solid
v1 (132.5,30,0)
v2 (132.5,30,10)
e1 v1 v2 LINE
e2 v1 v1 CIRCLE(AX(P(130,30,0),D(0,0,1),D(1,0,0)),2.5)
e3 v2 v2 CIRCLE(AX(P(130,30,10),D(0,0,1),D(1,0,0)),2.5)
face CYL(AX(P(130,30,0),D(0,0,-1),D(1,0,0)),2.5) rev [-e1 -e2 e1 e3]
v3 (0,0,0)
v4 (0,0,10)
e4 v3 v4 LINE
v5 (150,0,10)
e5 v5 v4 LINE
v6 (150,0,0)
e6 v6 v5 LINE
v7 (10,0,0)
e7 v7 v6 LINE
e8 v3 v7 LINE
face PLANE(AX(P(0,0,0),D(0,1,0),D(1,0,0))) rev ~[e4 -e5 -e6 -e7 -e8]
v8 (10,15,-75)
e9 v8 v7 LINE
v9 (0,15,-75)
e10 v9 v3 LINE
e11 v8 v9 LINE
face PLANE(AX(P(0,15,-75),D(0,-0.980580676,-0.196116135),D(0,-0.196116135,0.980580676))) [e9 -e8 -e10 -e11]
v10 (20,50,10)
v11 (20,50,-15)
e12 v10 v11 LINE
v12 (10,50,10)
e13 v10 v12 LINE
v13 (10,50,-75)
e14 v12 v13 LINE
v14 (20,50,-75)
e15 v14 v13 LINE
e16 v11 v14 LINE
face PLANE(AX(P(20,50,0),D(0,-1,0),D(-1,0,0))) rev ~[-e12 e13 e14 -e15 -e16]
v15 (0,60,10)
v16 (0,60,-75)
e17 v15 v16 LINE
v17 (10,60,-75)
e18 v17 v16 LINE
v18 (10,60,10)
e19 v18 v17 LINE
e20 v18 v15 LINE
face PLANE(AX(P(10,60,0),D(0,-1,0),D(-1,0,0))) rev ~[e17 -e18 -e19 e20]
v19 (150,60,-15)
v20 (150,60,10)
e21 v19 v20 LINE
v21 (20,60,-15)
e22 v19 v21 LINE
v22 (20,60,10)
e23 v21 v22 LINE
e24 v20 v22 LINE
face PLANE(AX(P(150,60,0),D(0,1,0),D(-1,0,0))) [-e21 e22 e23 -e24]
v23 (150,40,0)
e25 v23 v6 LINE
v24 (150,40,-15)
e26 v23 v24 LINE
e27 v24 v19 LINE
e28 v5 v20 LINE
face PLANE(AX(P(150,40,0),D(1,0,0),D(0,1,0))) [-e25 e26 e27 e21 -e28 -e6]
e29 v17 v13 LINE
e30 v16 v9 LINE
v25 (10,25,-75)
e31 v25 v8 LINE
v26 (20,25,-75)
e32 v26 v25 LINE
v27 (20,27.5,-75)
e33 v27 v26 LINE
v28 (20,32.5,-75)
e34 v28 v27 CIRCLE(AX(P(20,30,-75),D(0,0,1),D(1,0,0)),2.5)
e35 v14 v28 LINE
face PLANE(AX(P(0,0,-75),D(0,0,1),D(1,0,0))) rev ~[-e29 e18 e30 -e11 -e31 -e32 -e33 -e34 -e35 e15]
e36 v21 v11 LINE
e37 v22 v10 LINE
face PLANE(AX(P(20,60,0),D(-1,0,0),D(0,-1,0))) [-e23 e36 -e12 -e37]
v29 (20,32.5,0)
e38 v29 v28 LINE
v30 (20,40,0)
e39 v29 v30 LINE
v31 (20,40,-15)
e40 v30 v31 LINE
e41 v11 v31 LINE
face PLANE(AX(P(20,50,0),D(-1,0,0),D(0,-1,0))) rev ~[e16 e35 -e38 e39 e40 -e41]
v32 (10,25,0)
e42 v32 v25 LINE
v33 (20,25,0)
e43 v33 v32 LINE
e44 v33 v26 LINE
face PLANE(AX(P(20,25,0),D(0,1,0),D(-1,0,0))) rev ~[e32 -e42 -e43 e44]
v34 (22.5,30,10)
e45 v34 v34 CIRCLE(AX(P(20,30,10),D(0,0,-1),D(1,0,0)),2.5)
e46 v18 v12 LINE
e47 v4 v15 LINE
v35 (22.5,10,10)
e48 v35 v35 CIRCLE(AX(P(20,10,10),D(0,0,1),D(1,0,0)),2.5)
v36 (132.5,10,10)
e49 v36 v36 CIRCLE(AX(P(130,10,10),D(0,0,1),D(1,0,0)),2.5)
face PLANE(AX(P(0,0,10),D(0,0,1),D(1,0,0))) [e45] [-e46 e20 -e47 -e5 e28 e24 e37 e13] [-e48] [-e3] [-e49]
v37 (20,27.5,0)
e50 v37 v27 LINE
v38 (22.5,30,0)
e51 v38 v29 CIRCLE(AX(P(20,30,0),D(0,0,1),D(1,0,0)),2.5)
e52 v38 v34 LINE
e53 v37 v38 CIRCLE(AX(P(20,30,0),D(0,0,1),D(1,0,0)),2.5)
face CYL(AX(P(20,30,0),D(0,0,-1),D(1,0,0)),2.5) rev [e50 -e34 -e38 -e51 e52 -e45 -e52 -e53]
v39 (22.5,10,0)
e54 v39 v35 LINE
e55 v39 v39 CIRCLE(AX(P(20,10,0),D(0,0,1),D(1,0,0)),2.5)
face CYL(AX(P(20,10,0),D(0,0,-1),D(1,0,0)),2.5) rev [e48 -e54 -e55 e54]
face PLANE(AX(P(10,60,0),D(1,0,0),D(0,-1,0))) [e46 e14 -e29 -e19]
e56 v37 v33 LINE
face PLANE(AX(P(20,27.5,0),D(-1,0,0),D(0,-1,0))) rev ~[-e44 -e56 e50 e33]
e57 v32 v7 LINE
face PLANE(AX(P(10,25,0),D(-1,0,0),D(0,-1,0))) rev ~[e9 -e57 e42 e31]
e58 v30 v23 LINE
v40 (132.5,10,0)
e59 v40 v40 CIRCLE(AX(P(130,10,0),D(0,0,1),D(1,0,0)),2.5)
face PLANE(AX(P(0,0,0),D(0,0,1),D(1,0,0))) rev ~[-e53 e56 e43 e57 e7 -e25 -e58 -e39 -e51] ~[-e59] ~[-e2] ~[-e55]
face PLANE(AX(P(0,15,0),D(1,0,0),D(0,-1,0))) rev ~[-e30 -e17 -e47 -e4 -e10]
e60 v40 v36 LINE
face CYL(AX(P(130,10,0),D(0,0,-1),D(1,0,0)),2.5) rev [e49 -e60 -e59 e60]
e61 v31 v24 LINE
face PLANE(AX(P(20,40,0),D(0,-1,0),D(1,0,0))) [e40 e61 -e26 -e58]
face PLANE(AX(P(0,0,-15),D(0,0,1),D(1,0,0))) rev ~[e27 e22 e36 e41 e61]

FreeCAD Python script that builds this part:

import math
import FreeCAD as App
import Part
import Sketcher
from FreeCAD import Vector

doc = App.newDocument("Part")
body = doc.addObject("PartDesign::Body", "Body")

# Sketch on XY plane
sketch1 = body.newObject("Sketcher::SketchObject", "Sketch")
sketch1.AttachmentSupport = (doc.getObject("XY_Plane"), [""])
sketch1.MapMode = "FlatFace"
sketch1.addGeometry(Part.LineSegment(Vector(0, 0, 0), Vector(150, 0, 0)), False)
sketch1.addGeometry(Part.LineSegment(Vector(150, 0, 0), Vector(150, 60, 0)), False)
sketch1.addGeometry(Part.LineSegment(Vector(150, 60, 0), Vector(20, 60, 0)), False)
sketch1.addGeometry(Part.LineSegment(Vector(20, 60, 0), Vector(20, 50, 0)), False)
sketch1.addGeometry(Part.LineSegment(Vector(20, 50, 0), Vector(10, 50, 0)), False)
sketch1.addGeometry(Part.LineSegment(Vector(10, 50, 0), Vector(10, 60, 0)), False)
sketch1.addGeometry(Part.LineSegment(Vector(10, 60, 0), Vector(0, 60, 0)), False)
sketch1.addGeometry(Part.LineSegment(Vector(0, 60, 0), Vector(0, 0, 0)), False)
sketch1.addGeometry(Part.Circle(Vector(130, 30, 0), Vector(0, 0, 1), 2.5), False)
sketch1.addGeometry(Part.Circle(Vector(130, 10, 0), Vector(0, 0, 1), 2.5), False)
sketch1.addGeometry(Part.Circle(Vector(20, 30, 0), Vector(0, 0, 1), 2.5), False)
sketch1.addGeometry(Part.Circle(Vector(20, 10, 0), Vector(0, 0, 1), 2.5), False)
sketch1.addConstraint(Sketcher.Constraint("Coincident", 0, 2, 1, 1))
sketch1.addConstraint(Sketcher.Constraint("Coincident", 1, 2, 2, 1))
sketch1.addConstraint(Sketcher.Constraint("Coincident", 2, 2, 3, 1))
sketch1.addConstraint(Sketcher.Constraint("Coincident", 3, 2, 4, 1))
sketch1.addConstraint(Sketcher.Constraint("Coincident", 4, 2, 5, 1))
sketch1.addConstraint(Sketcher.Constraint("Coincident", 5, 2, 6, 1))
sketch1.addConstraint(Sketcher.Constraint("Coincident", 6, 2, 7, 1))
sketch1.addConstraint(Sketcher.Constraint("Coincident", 7, 2, 0, 1))
sketch1.addConstraint(Sketcher.Constraint("Horizontal", 0))
sketch1.addConstraint(Sketcher.Constraint("Vertical", 1))
sketch1.addConstraint(Sketcher.Constraint("Horizontal", 2))
sketch1.addConstraint(Sketcher.Constraint("Vertical", 3))
sketch1.addConstraint(Sketcher.Constraint("Horizontal", 4))
sketch1.addConstraint(Sketcher.Constraint("Vertical", 5))
sketch1.addConstraint(Sketcher.Constraint("Horizontal", 6))
sketch1.addConstraint(Sketcher.Constraint("Vertical", 7))
sketch1.addConstraint(Sketcher.Constraint("Coincident", 7, 2, -1, 1))
sketch1.addConstraint(Sketcher.Constraint("Equal", 8, 9))
sketch1.addConstraint(Sketcher.Constraint("Equal", 9, 10))
sketch1.addConstraint(Sketcher.Constraint("Equal", 10, 11))
sketch1.addConstraint(Sketcher.Constraint("Horizontal", 8, 3, 10, 3))
sketch1.addConstraint(Sketcher.Constraint("Horizontal", 9, 3, 11, 3))
sketch1.addConstraint(Sketcher.Constraint("Horizontal", 2, 2, 5, 2))
sketch1.addConstraint(Sketcher.Constraint("Vertical", 8, 3, 9, 3))
sketch1.addConstraint(Sketcher.Constraint("Vertical", 10, 3, 11, 3))
sketch1.addConstraint(Sketcher.Constraint("Vertical", 11, 3, 2, 2))
sketch1.addConstraint(Sketcher.Constraint("Equal", 4, 6))
sketch1.addConstraint(Sketcher.Constraint("Equal", 6, 3))
sketch1.addConstraint(Sketcher.Constraint("Diameter", 8, 5.0))
sketch1.addConstraint(Sketcher.Constraint("DistanceX", 0, 1, 0, 2, 150.0))
sketch1.addConstraint(Sketcher.Constraint("DistanceX", 4, 2, 4, 1, 10.0))
sketch1.addConstraint(Sketcher.Constraint("DistanceY", 1, 1, 1, 2, 60.0))
sketch1.addConstraint(Sketcher.Constraint("DistanceY", -1, 1, 8, 3, 30.0))
sketch1.addConstraint(Sketcher.Constraint("DistanceY", -1, 1, 9, 3, 10.0))
sketch1.addConstraint(Sketcher.Constraint("DistanceX", 9, 3, 0, 2, 20.0))
pad1 = body.newObject("PartDesign::Pad", "Pad")
pad1.Profile = sketch1
pad1.Length = 10

# Sketch on XY plane
sketch2 = body.newObject("Sketcher::SketchObject", "Sketch001")
sketch2.AttachmentSupport = (doc.getObject("XY_Plane"), [""])
sketch2.MapMode = "FlatFace"
sketch2.addGeometry(Part.LineSegment(Vector(0, 60, 0), Vector(0, 15, 0)), False)
sketch2.addGeometry(Part.LineSegment(Vector(0, 15, 0), Vector(10, 15, 0)), False)
sketch2.addGeometry(Part.LineSegment(Vector(10, 15, 0), Vector(10, 25, 0)), False)
sketch2.addGeometry(Part.LineSegment(Vector(10, 25, 0), Vector(20, 25, 0)), False)
sketch2.addGeometry(Part.LineSegment(Vector(20, 25, 0), Vector(20, 27.5, 0)), False)
sketch2.addGeometry(Part.ArcOfCircle(Part.Circle(Vector(20, 30, 0), Vector(0, 0, 1), 2.5), math.radians(90), math.radians(270)), False)
sketch2.addGeometry(Part.LineSegment(Vector(20, 32.5, 0), Vector(20, 50, 0)), False)
sketch2.addGeometry(Part.LineSegment(Vector(20, 50, 0), Vector(10, 50, 0)), False)
sketch2.addGeometry(Part.LineSegment(Vector(10, 50, 0), Vector(10, 60, 0)), False)
sketch2.addGeometry(Part.LineSegment(Vector(10, 60, 0), Vector(0, 60, 0)), False)
sketch2.addConstraint(Sketcher.Constraint("Coincident", 0, 2, 1, 1))
sketch2.addConstraint(Sketcher.Constraint("Coincident", 1, 2, 2, 1))
sketch2.addConstraint(Sketcher.Constraint("Coincident", 2, 2, 3, 1))
sketch2.addConstraint(Sketcher.Constraint("Coincident", 3, 2, 4, 1))
sketch2.addConstraint(Sketcher.Constraint("Coincident", 4, 2, 5, 2))
sketch2.addConstraint(Sketcher.Constraint("Coincident", 5, 1, 6, 1))
sketch2.addConstraint(Sketcher.Constraint("Coincident", 6, 2, 7, 1))
sketch2.addConstraint(Sketcher.Constraint("Coincident", 7, 2, 8, 1))
sketch2.addConstraint(Sketcher.Constraint("Coincident", 8, 2, 9, 1))
sketch2.addConstraint(Sketcher.Constraint("Coincident", 9, 2, 0, 1))
sketch2.addConstraint(Sketcher.Constraint("Vertical", 0))
sketch2.addConstraint(Sketcher.Constraint("Horizontal", 1))
sketch2.addConstraint(Sketcher.Constraint("Vertical", 2))
sketch2.addConstraint(Sketcher.Constraint("Horizontal", 3))
sketch2.addConstraint(Sketcher.Constraint("Vertical", 4))
sketch2.addConstraint(Sketcher.Constraint("Vertical", 6))
sketch2.addConstraint(Sketcher.Constraint("Horizontal", 7))
sketch2.addConstraint(Sketcher.Constraint("Vertical", 8))
sketch2.addConstraint(Sketcher.Constraint("Horizontal", 9))
sketch2.addConstraint(Sketcher.Constraint("PointOnObject", 0, 2, -2))
sketch2.addConstraint(Sketcher.Constraint("Vertical", 5, 3, 3, 2))
sketch2.addConstraint(Sketcher.Constraint("Vertical", 4, 2, 5, 1))
sketch2.addConstraint(Sketcher.Constraint("Vertical", 2, 2, 7, 2))
sketch2.addConstraint(Sketcher.Constraint("Equal", 1, 3))
sketch2.addConstraint(Sketcher.Constraint("Equal", 9, 2))
sketch2.addConstraint(Sketcher.Constraint("Equal", 2, 8))
sketch2.addConstraint(Sketcher.Constraint("Radius", 5, 2.5))
sketch2.addConstraint(Sketcher.Constraint("DistanceX", 1, 1, 1, 2, 10.0))
sketch2.addConstraint(Sketcher.Constraint("DistanceY", -1, 1, 5, 3, 30.0))
sketch2.addConstraint(Sketcher.Constraint("DistanceY", -1, 1, 2, 2, 25.0))
sketch2.addConstraint(Sketcher.Constraint("DistanceY", -1, 1, 8, 2, 60.0))
pad2 = body.newObject("PartDesign::Pad", "Pad001")
pad2.Profile = sketch2
pad2.Length = 75
pad2.Reversed = True

# Sketch on YZ plane
sketch3 = body.newObject("Sketcher::SketchObject", "Sketch002")
sketch3.AttachmentSupport = (doc.getObject("YZ_Plane"), [""])
sketch3.MapMode = "FlatFace"
sketch3.addGeometry(Part.LineSegment(Vector(0, 10, 0), Vector(60, 10, 0)), False)
sketch3.addGeometry(Part.LineSegment(Vector(60, 10, 0), Vector(60, -75, 0)), False)
sketch3.addGeometry(Part.LineSegment(Vector(60, -75, 0), Vector(15, -75, 0)), False)
sketch3.addGeometry(Part.LineSegment(Vector(15, -75, 0), Vector(0, 0, 0)), False)
sketch3.addGeometry(Part.LineSegment(Vector(0, 0, 0), Vector(0, 10, 0)), False)
sketch3.addConstraint(Sketcher.Constraint("Coincident", 0, 2, 1, 1))
sketch3.addConstraint(Sketcher.Constraint("Coincident", 1, 2, 2, 1))
sketch3.addConstraint(Sketcher.Constraint("Coincident", 2, 2, 3, 1))
sketch3.addConstraint(Sketcher.Constraint("Coincident", 3, 2, 4, 1))
sketch3.addConstraint(Sketcher.Constraint("Coincident", 4, 2, 0, 1))
sketch3.addConstraint(Sketcher.Constraint("Horizontal", 0))
sketch3.addConstraint(Sketcher.Constraint("Vertical", 1))
sketch3.addConstraint(Sketcher.Constraint("Horizontal", 2))
sketch3.addConstraint(Sketcher.Constraint("Vertical", 4))
sketch3.addConstraint(Sketcher.Constraint("Coincident", 3, 2, -1, 1))
sketch3.addConstraint(Sketcher.Constraint("DistanceX", 0, 1, 0, 2, 60.0))
sketch3.addConstraint(Sketcher.Constraint("DistanceX", 2, 2, 2, 1, 45.0))
sketch3.addConstraint(Sketcher.Constraint("DistanceY", 1, 2, 1, 1, 85.0))
sketch3.addConstraint(Sketcher.Constraint("DistanceY", 4, 1, 4, 2, 10.0))
pad3 = body.newObject("PartDesign::Pad", "Pad002")
pad3.Profile = sketch3
pad3.Length = 10

# Sketch on XY plane
sketch4 = body.newObject("Sketcher::SketchObject", "Sketch003")
sketch4.AttachmentSupport = (doc.getObject("XY_Plane"), [""])
sketch4.MapMode = "FlatFace"
sketch4.addGeometry(Part.LineSegment(Vector(20, 40, 0), Vector(150, 40, 0)), False)
sketch4.addGeometry(Part.LineSegment(Vector(150, 40, 0), Vector(150, 60, 0)), False)
sketch4.addGeometry(Part.LineSegment(Vector(150, 60, 0), Vector(20, 60, 0)), False)
sketch4.addGeometry(Part.LineSegment(Vector(20, 60, 0), Vector(20, 40, 0)), False)
sketch4.addConstraint(Sketcher.Constraint("Coincident", 0, 2, 1, 1))
sketch4.addConstraint(Sketcher.Constraint("Coincident", 1, 2, 2, 1))
sketch4.addConstraint(Sketcher.Constraint("Coincident", 2, 2, 3, 1))
sketch4.addConstraint(Sketcher.Constraint("Coincident", 3, 2, 0, 1))
sketch4.addConstraint(Sketcher.Constraint("Horizontal", 0))
sketch4.addConstraint(Sketcher.Constraint("Vertical", 1))
sketch4.addConstraint(Sketcher.Constraint("Horizontal", 2))
sketch4.addConstraint(Sketcher.Constraint("Vertical", 3))
sketch4.addConstraint(Sketcher.Constraint("DistanceY", 1, 1, 1, 2, 20.0))
sketch4.addConstraint(Sketcher.Constraint("DistanceX", -1, 1, 0, 2, 150.0))
sketch4.addConstraint(Sketcher.Constraint("DistanceY", -1, 1, 1, 2, 60.0))
sketch4.addConstraint(Sketcher.Constraint("DistanceX", -1, 1, 2, 2, 20.0))
pad4 = body.newObject("PartDesign::Pad", "Pad003")
pad4.Profile = sketch4
pad4.Length = 15
pad4.Reversed = True

doc.recompute()
